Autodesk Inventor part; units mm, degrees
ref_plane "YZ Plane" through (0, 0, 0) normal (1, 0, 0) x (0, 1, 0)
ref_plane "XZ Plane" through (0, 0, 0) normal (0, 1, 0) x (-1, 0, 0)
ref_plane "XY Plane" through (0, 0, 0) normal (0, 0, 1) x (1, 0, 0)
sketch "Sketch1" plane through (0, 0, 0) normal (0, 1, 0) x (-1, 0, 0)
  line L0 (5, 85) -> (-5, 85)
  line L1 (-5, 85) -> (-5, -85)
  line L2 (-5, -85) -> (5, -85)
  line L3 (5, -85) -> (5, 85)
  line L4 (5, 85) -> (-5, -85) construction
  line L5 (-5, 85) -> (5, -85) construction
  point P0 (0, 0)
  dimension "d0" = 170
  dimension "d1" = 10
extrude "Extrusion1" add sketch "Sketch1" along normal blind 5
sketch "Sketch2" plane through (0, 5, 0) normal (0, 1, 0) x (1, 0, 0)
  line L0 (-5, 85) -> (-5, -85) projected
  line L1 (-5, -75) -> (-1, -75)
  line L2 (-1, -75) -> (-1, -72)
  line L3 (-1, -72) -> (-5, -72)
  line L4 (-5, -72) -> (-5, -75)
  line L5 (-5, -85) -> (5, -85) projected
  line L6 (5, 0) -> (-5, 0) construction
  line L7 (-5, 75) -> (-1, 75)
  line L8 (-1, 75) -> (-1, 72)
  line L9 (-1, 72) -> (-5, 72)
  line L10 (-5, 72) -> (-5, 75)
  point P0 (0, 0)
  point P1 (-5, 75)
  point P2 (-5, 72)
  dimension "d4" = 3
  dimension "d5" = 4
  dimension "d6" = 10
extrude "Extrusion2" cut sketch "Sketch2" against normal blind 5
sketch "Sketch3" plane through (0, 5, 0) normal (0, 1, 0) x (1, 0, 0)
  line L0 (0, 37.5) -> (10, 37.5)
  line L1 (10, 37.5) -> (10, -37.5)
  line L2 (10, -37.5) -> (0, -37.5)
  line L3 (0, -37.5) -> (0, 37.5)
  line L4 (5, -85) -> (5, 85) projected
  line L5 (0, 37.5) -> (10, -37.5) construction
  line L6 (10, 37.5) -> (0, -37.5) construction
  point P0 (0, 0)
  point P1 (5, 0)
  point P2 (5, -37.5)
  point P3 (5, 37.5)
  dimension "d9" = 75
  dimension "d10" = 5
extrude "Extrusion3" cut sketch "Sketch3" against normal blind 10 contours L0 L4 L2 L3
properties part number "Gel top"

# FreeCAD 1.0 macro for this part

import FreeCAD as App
import Part
import Sketcher
from FreeCAD import Vector


def add_polygon(sketch, points):
    """Adds a closed chain of lines whose ends are joined by coincident constraints."""
    first, n = sketch.GeometryCount, len(points)
    for a, b in zip(points, points[1:] + points[:1]):
        sketch.addGeometry(Part.LineSegment(App.Vector(*a, 0), App.Vector(*b, 0)), False)
    for i in range(n):
        sketch.addConstraint(Sketcher.Constraint("Coincident", first + i, 2, first + (i + 1) % n, 1))

doc = App.newDocument("Part")
params = doc.addObject("Spreadsheet::Sheet", "Params")
for row, (alias, value) in enumerate([
    ("sketch1_width", "10 mm"),
    ("sketch1_height", "170 mm"),
    ("pad1_length", "5 mm"),
    ("sketch2_width", "4 mm"),
    ("sketch2_height", "3 mm"),
    ("pocket1_length", "5 mm"),
    ("sketch3_width", "5 mm"),
    ("sketch3_height", "75 mm"),
    ("pocket2_length", "10 mm"),
], start=1):
    params.set(f"A{row}", alias)
    params.set(f"B{row}", "=" + value)
    params.setAlias(f"B{row}", alias)

body = doc.addObject("PartDesign::Body", "Body")

# Sketch on XZ plane
sketch1 = body.newObject("Sketcher::SketchObject", "Sketch")
sketch1.AttachmentSupport = (doc.getObject("XZ_Plane"), [""])
sketch1.MapMode = "FlatFace"
add_polygon(sketch1, [(-5, -85), (-5, 85), (5, 85), (5, -85)])  # lines 0-3
sketch1.addConstraint(Sketcher.Constraint("Vertical", 0))
sketch1.addConstraint(Sketcher.Constraint("Horizontal", 1))
sketch1.addConstraint(Sketcher.Constraint("Vertical", 2))
sketch1.addConstraint(Sketcher.Constraint("Horizontal", 3))
sketch1.addConstraint(Sketcher.Constraint("Symmetric", 0, 2, 2, 2, -1, 1))
sketch1.addConstraint(Sketcher.Constraint("DistanceX", 1, 1, 1, 2, 10.0))
sketch1.addConstraint(Sketcher.Constraint("DistanceY", 0, 1, 0, 2, 170.0))
sketch1.setExpression("Constraints[9]", "Params.sketch1_width")
sketch1.setExpression("Constraints[10]", "Params.sketch1_height")
pad1 = body.newObject("PartDesign::Pad", "Pad")
pad1.Profile = sketch1
pad1.setExpression("Length", "Params.pad1_length")
pad1.Reversed = True

# Sketch on XZ plane
sketch2 = body.newObject("Sketcher::SketchObject", "Sketch001")
sketch2.AttachmentSupport = (doc.getObject("XZ_Plane"), [""])
sketch2.MapMode = "FlatFace"
sketch2.AttachmentOffset = App.Placement(Vector(0, 0, -5), App.Rotation())
add_polygon(sketch2, [(-1, -75), (-5, -75), (-5, -72), (-1, -72)])  # lines 0-3
add_polygon(sketch2, [(-1, 72), (-5, 72), (-5, 75), (-1, 75)])  # lines 4-7
sketch2.addConstraint(Sketcher.Constraint("Horizontal", 0))
sketch2.addConstraint(Sketcher.Constraint("Vertical", 1))
sketch2.addConstraint(Sketcher.Constraint("Horizontal", 2))
sketch2.addConstraint(Sketcher.Constraint("Vertical", 3))
sketch2.addConstraint(Sketcher.Constraint("Horizontal", 4))
sketch2.addConstraint(Sketcher.Constraint("Vertical", 5))
sketch2.addConstraint(Sketcher.Constraint("Horizontal", 6))
sketch2.addConstraint(Sketcher.Constraint("Vertical", 7))
sketch2.addConstraint(Sketcher.Constraint("Symmetric", 1, 2, 4, 2, -1))
sketch2.addConstraint(Sketcher.Constraint("Symmetric", 3, 2, 6, 2, -1))
sketch2.addConstraint(Sketcher.Constraint("DistanceX", 0, 2, 0, 1, 4.0))
sketch2.addConstraint(Sketcher.Constraint("DistanceY", 1, 1, 1, 2, 3.0))
sketch2.addConstraint(Sketcher.Constraint("DistanceX", 0, 2, -1, 1, 5.0))
sketch2.addConstraint(Sketcher.Constraint("DistanceY", 0, 2, -1, 1, 75.0))
sketch2.setExpression("Constraints[18]", "Params.sketch2_width")
sketch2.setExpression("Constraints[19]", "Params.sketch2_height")
pocket1 = body.newObject("PartDesign::Pocket", "Pocket")
pocket1.Profile = sketch2
pocket1.setExpression("Length", "Params.pocket1_length")
pocket1.Reversed = True

# Sketch on XZ plane
sketch3 = body.newObject("Sketcher::SketchObject", "Sketch002")
sketch3.AttachmentSupport = (doc.getObject("XZ_Plane"), [""])
sketch3.MapMode = "FlatFace"
sketch3.AttachmentOffset = App.Placement(Vector(0, 0, -5), App.Rotation())
add_polygon(sketch3, [(5, -38), (0, -38), (0, 38), (5, 38)])  # lines 0-3
sketch3.addConstraint(Sketcher.Constraint("Horizontal", 0))
sketch3.addConstraint(Sketcher.Constraint("Vertical", 1))
sketch3.addConstraint(Sketcher.Constraint("Horizontal", 2))
sketch3.addConstraint(Sketcher.Constraint("Vertical", 3))
sketch3.addConstraint(Sketcher.Constraint("Symmetric", 0, 2, 1, 2, -1, 1))
sketch3.addConstraint(Sketcher.Constraint("DistanceX", 0, 2, 0, 1, 5.0))
sketch3.addConstraint(Sketcher.Constraint("DistanceY", 1, 1, 1, 2, 75.0))
sketch3.setExpression("Constraints[9]", "Params.sketch3_width")
sketch3.setExpression("Constraints[10]", "Params.sketch3_height")
pocket2 = body.newObject("PartDesign::Pocket", "Pocket001")
pocket2.Profile = sketch3
pocket2.setExpression("Length", "Params.pocket2_length")
pocket2.Reversed = True

doc.recompute()
